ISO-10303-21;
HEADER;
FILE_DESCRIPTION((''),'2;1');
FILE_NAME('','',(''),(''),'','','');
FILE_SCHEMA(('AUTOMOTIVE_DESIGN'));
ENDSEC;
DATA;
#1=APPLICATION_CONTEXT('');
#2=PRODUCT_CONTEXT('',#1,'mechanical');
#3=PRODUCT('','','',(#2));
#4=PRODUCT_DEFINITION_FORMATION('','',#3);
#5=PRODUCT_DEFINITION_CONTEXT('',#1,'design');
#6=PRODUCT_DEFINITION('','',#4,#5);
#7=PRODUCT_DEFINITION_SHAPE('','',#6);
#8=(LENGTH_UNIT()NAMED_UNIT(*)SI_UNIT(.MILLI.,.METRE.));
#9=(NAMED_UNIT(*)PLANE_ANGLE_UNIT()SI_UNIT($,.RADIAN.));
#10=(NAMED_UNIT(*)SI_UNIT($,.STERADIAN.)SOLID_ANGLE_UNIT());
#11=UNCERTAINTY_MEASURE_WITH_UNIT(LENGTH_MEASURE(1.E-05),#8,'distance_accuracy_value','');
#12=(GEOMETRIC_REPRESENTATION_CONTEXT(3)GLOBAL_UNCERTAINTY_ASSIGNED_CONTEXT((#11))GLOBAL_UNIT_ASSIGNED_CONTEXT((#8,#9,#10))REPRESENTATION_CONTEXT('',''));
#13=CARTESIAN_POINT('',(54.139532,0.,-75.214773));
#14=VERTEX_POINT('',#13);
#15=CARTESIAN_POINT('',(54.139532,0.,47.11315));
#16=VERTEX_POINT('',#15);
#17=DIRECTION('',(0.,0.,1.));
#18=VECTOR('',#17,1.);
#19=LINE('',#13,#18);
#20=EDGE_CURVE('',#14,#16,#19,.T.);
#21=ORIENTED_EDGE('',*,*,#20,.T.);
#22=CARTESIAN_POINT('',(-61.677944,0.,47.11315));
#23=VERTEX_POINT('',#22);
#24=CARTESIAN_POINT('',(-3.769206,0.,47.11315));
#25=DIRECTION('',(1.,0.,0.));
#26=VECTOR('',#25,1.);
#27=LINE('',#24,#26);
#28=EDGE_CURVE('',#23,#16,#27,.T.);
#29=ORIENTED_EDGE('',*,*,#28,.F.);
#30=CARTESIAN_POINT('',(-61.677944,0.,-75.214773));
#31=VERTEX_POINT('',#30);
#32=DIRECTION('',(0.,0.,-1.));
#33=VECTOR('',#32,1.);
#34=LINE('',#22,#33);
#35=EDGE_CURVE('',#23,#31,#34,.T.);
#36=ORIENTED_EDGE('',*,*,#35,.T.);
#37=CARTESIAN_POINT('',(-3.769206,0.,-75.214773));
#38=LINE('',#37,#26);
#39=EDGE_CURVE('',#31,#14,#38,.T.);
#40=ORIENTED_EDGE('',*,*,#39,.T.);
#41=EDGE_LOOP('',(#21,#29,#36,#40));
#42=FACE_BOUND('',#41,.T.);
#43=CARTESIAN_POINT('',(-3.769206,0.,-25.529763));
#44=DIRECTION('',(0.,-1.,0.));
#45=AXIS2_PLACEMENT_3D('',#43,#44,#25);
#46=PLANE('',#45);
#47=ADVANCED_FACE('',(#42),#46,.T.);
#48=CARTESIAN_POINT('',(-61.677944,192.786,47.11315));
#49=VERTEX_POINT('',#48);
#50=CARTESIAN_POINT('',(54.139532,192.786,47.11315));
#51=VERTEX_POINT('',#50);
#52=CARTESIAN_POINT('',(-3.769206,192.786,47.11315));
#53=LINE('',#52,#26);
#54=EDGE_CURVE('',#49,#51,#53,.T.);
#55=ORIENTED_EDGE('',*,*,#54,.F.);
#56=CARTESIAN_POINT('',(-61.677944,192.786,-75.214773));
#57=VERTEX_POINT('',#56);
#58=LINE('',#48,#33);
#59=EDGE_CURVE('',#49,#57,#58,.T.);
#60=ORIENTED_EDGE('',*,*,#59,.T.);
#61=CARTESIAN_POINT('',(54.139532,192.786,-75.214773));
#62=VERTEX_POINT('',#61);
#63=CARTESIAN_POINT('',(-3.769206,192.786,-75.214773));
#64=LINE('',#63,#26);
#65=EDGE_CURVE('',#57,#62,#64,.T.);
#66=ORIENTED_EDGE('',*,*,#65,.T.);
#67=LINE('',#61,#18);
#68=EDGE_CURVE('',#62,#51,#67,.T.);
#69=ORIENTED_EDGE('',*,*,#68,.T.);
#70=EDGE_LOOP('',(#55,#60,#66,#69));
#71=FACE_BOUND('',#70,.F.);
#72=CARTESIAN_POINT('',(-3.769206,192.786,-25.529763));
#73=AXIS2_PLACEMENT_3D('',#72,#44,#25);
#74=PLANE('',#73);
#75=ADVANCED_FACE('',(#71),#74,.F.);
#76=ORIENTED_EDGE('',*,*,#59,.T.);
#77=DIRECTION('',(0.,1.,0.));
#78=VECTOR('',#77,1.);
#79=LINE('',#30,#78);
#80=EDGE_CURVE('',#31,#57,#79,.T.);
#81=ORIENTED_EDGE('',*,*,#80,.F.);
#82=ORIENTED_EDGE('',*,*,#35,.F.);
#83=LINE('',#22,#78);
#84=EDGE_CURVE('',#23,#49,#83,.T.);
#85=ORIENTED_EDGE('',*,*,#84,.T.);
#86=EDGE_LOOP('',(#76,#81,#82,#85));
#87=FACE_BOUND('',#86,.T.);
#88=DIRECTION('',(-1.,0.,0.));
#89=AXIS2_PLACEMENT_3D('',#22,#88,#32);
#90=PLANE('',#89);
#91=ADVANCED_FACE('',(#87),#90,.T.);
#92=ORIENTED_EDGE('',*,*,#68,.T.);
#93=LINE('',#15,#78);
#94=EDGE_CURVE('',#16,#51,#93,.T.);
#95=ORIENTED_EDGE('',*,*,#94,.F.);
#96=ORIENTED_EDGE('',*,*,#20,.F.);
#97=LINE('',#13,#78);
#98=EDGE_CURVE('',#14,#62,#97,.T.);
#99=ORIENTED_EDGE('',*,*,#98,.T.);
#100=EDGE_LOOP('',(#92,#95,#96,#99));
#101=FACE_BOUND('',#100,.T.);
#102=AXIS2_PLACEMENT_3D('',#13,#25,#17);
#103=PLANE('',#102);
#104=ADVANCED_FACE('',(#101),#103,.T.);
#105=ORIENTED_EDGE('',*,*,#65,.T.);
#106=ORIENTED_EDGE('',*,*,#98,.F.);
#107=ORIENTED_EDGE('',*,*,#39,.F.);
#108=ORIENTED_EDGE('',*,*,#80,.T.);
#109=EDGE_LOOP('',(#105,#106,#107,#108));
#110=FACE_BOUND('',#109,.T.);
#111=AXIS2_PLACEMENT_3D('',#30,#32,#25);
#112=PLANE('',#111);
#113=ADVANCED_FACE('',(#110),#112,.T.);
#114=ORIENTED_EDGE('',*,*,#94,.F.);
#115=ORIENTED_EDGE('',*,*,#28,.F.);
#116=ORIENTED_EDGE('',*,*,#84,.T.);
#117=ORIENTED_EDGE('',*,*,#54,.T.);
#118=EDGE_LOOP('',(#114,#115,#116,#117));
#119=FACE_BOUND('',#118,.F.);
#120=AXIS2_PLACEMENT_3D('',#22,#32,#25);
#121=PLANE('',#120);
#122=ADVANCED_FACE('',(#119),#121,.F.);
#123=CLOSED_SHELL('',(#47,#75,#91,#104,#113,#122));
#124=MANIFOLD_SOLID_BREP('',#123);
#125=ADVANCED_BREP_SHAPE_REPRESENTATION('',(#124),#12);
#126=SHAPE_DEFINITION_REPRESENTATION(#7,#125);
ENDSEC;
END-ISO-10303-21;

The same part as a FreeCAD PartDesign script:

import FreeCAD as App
import Part
import Sketcher
from FreeCAD import Vector
Q = App.Units.Quantity


def add_polygon(sketch, points):
    """Adds a closed chain of lines whose ends are joined by coincident constraints."""
    first, n = sketch.GeometryCount, len(points)
    for a, b in zip(points, points[1:] + points[:1]):
        sketch.addGeometry(Part.LineSegment(App.Vector(*a, 0), App.Vector(*b, 0)), False)
    for i in range(n):
        sketch.addConstraint(Sketcher.Constraint("Coincident", first + i, 2, first + (i + 1) % n, 1))

doc = App.newDocument("Part")
body = doc.addObject("PartDesign::Body", "Body")

# Sketch on XZ plane
sketch1 = body.newObject("Sketcher::SketchObject", "Sketch")
sketch1.AttachmentSupport = (doc.getObject("XZ_Plane"), [""])
sketch1.MapMode = "FlatFace"
add_polygon(sketch1, [(-62, -75), (54, -75), (54, 47), (-62, 47)])  # lines 0-3
sketch1.addConstraint([
    Sketcher.Constraint("Horizontal", 0),
    Sketcher.Constraint("Vertical", 1),
    Sketcher.Constraint("Horizontal", 2),
    Sketcher.Constraint("Vertical", 3),
    Sketcher.Constraint("DistanceX", 0, 1, 0, 2, Q("115.817476 mm")),
    Sketcher.Constraint("DistanceY", 1, 1, 1, 2, Q("122.327924 mm")),
    Sketcher.Constraint("DistanceY", -1, 1, 1, 2, Q("47.11315 mm")),
    Sketcher.Constraint("DistanceX", -1, 1, 0, 2, Q("54.139532 mm")),
])
pad1 = body.newObject("PartDesign::Pad", "Pad")
pad1.Profile = sketch1
pad1.Length = Q("7.59 in")
pad1.Reversed = True

doc.recompute()
